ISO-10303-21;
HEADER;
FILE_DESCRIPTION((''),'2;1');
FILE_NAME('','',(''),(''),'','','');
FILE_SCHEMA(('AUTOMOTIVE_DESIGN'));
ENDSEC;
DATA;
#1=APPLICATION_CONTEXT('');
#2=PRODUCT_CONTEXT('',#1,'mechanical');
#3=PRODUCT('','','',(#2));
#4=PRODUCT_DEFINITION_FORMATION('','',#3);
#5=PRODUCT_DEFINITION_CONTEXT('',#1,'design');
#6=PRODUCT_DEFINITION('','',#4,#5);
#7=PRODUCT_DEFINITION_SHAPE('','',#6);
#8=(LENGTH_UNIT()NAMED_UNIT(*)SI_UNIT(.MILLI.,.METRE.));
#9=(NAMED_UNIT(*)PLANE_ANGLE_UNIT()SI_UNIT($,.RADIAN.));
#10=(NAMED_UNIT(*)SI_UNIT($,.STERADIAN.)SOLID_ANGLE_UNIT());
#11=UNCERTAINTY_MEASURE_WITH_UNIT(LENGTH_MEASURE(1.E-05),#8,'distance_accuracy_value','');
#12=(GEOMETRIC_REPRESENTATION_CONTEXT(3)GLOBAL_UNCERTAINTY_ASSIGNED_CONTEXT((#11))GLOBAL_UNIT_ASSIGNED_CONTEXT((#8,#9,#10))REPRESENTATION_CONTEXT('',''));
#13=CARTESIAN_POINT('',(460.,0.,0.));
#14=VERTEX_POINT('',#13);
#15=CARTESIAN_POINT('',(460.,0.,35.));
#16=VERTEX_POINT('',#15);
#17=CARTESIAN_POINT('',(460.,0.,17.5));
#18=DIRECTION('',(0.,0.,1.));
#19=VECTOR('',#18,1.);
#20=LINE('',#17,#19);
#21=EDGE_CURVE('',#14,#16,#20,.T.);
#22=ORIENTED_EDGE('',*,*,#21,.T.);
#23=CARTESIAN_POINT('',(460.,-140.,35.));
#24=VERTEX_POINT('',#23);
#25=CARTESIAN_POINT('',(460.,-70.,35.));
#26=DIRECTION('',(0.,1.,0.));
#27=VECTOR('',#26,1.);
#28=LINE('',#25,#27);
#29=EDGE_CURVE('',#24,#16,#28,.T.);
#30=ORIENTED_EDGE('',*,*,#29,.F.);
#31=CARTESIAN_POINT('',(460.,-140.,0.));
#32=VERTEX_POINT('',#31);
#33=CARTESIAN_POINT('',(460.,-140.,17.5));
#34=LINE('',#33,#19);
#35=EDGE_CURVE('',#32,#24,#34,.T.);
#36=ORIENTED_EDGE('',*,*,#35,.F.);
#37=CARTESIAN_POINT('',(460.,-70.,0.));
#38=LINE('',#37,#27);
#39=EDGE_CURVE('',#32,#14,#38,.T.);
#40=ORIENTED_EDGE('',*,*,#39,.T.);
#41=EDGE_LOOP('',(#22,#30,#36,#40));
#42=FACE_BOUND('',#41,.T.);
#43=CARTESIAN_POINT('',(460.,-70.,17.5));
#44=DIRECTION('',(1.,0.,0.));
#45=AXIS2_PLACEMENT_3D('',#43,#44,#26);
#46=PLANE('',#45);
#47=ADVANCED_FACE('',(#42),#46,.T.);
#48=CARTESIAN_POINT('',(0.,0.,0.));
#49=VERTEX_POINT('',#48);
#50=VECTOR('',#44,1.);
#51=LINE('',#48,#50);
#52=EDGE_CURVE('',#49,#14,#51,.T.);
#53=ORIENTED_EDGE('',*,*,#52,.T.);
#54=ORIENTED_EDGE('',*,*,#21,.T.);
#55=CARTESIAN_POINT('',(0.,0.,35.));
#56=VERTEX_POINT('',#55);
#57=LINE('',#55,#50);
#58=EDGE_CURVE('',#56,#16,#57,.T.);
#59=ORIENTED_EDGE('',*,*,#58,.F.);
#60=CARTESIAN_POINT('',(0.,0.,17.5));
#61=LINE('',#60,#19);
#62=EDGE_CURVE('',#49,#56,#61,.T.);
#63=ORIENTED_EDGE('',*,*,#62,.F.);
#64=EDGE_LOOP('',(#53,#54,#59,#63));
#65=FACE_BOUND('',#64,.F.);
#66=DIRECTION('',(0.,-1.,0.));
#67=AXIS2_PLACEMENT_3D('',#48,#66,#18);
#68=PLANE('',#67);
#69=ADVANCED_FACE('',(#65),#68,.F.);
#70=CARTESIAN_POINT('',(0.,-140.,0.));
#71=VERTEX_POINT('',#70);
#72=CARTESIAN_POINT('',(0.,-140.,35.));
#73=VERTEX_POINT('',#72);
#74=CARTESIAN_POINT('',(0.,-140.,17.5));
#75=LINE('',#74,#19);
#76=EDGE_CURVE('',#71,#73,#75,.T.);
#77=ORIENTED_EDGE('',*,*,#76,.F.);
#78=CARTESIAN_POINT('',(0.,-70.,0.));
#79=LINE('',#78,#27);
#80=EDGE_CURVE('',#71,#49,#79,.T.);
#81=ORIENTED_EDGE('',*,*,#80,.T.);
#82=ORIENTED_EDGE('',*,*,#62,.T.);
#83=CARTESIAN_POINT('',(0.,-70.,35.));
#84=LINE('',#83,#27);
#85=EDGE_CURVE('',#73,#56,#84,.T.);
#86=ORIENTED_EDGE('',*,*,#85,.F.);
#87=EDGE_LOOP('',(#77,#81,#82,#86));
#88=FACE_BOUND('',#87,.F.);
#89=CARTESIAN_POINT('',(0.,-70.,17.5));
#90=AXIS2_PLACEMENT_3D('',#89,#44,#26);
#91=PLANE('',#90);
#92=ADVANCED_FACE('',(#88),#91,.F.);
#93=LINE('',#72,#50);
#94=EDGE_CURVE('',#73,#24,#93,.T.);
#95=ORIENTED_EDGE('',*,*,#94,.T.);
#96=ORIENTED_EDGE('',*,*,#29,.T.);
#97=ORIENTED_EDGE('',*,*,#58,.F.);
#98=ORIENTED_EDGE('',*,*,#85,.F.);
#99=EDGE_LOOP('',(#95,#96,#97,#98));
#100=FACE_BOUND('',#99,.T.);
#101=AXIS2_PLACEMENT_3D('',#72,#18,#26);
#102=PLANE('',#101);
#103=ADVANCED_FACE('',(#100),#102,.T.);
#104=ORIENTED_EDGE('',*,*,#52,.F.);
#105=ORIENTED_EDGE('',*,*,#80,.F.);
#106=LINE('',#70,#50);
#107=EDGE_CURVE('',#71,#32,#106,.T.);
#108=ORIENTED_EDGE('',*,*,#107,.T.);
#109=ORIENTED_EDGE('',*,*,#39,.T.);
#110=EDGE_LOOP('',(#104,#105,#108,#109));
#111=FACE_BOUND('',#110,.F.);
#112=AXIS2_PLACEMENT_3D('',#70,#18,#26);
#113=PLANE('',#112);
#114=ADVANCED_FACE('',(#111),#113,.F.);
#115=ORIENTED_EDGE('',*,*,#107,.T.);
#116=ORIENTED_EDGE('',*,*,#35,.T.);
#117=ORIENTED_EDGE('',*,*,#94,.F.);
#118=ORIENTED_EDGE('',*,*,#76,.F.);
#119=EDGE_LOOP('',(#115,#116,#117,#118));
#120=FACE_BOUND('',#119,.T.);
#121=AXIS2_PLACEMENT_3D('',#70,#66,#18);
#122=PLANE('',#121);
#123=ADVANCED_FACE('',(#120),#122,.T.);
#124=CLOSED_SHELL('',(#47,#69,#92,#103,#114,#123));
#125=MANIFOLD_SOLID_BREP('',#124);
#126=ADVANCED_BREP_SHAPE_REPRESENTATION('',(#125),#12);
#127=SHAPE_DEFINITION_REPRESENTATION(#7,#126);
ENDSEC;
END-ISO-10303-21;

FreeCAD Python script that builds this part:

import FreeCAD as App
import Part
import Sketcher
from FreeCAD import Vector
Q = App.Units.Quantity


def add_polygon(sketch, points):
    """Adds a closed chain of lines whose ends are joined by coincident constraints."""
    first, n = sketch.GeometryCount, len(points)
    for a, b in zip(points, points[1:] + points[:1]):
        sketch.addGeometry(Part.LineSegment(App.Vector(*a, 0), App.Vector(*b, 0)), False)
    for i in range(n):
        sketch.addConstraint(Sketcher.Constraint("Coincident", first + i, 2, first + (i + 1) % n, 1))

doc = App.newDocument("Part")
body = doc.addObject("PartDesign::Body", "Body")

# Sketch on YZ plane
sketch1 = body.newObject("Sketcher::SketchObject", "Sketch")
sketch1.AttachmentSupport = (doc.getObject("YZ_Plane"), [""])
sketch1.MapMode = "FlatFace"
add_polygon(sketch1, [(-140, 35), (-140, 0), (0, 0), (0, 35)])  # lines 0-3
sketch1.addConstraint([
    Sketcher.Constraint("Vertical", 0),
    Sketcher.Constraint("Horizontal", 1),
    Sketcher.Constraint("Vertical", 2),
    Sketcher.Constraint("Horizontal", 3),
    Sketcher.Constraint("Coincident", 1, 2, -1, 1),
    Sketcher.Constraint("DistanceX", 1, 1, 1, 2, Q("140 mm")),
    Sketcher.Constraint("DistanceY", 0, 2, 0, 1, Q("35 mm")),
])
pad1 = body.newObject("PartDesign::Pad", "Pad")
pad1.Profile = sketch1
pad1.Length = 460

doc.recompute()
